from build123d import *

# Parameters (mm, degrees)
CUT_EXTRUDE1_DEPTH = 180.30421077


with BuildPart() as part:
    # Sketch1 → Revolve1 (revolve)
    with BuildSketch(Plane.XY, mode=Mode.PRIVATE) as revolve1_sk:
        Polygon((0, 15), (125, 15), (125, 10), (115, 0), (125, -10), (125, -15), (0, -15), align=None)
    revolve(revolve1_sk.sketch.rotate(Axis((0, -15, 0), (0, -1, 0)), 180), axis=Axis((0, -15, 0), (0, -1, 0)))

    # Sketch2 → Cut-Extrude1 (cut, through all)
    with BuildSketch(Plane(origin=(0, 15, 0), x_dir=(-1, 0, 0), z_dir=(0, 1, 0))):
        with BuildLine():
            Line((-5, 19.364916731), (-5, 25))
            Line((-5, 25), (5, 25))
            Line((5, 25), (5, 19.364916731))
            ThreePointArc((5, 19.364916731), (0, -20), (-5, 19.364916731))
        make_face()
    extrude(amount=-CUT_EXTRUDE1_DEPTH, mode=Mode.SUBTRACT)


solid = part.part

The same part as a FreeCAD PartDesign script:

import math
import FreeCAD as App
import Part
import Sketcher
from FreeCAD import Vector

doc = App.newDocument("Part")
body = doc.addObject("PartDesign::Body", "Body")

# Sketch on XY plane
sketch1 = body.newObject("Sketcher::SketchObject", "Sketch")
sketch1.AttachmentSupport = (doc.getObject("XY_Plane"), [""])
sketch1.MapMode = "FlatFace"
sketch1.addGeometry([
    Part.LineSegment(Vector(125, 15, 0), Vector(0, 15, 0)),  # 0
    Part.LineSegment(Vector(0, 15, 0), Vector(0, -15, 0)),  # 1
    Part.LineSegment(Vector(0, -15, 0), Vector(125, -15, 0)),  # 2
    Part.LineSegment(Vector(125, -15, 0), Vector(125, -10, 0)),  # 3
    Part.LineSegment(Vector(125, -10, 0), Vector(115, 0, 0)),  # 4
    Part.LineSegment(Vector(115, 0, 0), Vector(125, 10, 0)),  # 5
    Part.LineSegment(Vector(125, 10, 0), Vector(125, 15, 0)),  # 6
], False)
sketch1.addConstraint([
    Sketcher.Constraint("Coincident", 0, 2, 1, 1),
    Sketcher.Constraint("Coincident", 1, 2, 2, 1),
    Sketcher.Constraint("Coincident", 2, 2, 3, 1),
    Sketcher.Constraint("Coincident", 3, 2, 4, 1),
    Sketcher.Constraint("Coincident", 4, 2, 5, 1),
    Sketcher.Constraint("Coincident", 5, 2, 6, 1),
    Sketcher.Constraint("Coincident", 6, 2, 0, 1),
    Sketcher.Constraint("Horizontal", 0),
    Sketcher.Constraint("Vertical", 1),
    Sketcher.Constraint("Horizontal", 2),
    Sketcher.Constraint("Vertical", 3),
    Sketcher.Constraint("Vertical", 6),
    Sketcher.Constraint("Symmetric", 0, 2, 1, 2, -1, 1),
    Sketcher.Constraint("Symmetric", 3, 2, 5, 2, -1),
    Sketcher.Constraint("PointOnObject", 4, 2, -1),
    Sketcher.Constraint("Perpendicular", 4, 5),
    Sketcher.Constraint("DistanceX", 0, 2, 0, 1, 125.0),
    Sketcher.Constraint("DistanceY", 1, 2, 1, 1, 30.0),
    Sketcher.Constraint("DistanceY", 3, 1, 3, 2, 5.0),
])
revolution = body.newObject("PartDesign::Revolution", "Revolution")
revolution.Profile = sketch1
revolution.ReferenceAxis = (sketch1, ["V_Axis"])
revolution.Angle = 360

# Sketch on XZ plane
sketch2 = body.newObject("Sketcher::SketchObject", "Sketch001")
sketch2.AttachmentSupport = (doc.getObject("XZ_Plane"), [""])
sketch2.MapMode = "FlatFace"
sketch2.AttachmentOffset = App.Placement(Vector(0, 0, -15), App.Rotation())
sketch2.addGeometry([
    Part.LineSegment(Vector(5, 25, 0), Vector(5, 19, 0)),
    Part.ArcOfCircle(Part.Circle(Vector(0, 0, 0), Vector(0, 0, 1), 20), math.radians(104), math.radians(436)),
    Part.LineSegment(Vector(-5, 19, 0), Vector(-5, 25, 0)),
    Part.LineSegment(Vector(-5, 25, 0), Vector(5, 25, 0)),
], False)
sketch2.addConstraint([
    Sketcher.Constraint("Coincident", 0, 2, 1, 2),
    Sketcher.Constraint("Coincident", 1, 1, 2, 1),
    Sketcher.Constraint("Coincident", 2, 2, 3, 1),
    Sketcher.Constraint("Coincident", 3, 2, 0, 1),
    Sketcher.Constraint("Vertical", 0),
    Sketcher.Constraint("Vertical", 2),
    Sketcher.Constraint("Horizontal", 3),
    Sketcher.Constraint("Coincident", 1, 3, -1, 1),
    Sketcher.Constraint("Horizontal", 0, 2, 1, 1),
    Sketcher.Constraint("Radius", 1, 20.0),
    Sketcher.Constraint("DistanceX", 3, 1, 3, 2, 10.0),
    Sketcher.Constraint("DistanceY", -1, 1, 2, 2, 25.0),
])
pocket1 = body.newObject("PartDesign::Pocket", "Pocket")
pocket1.Profile = sketch2
pocket1.Type = "ThroughAll"
pocket1.Reversed = True

doc.recompute()
